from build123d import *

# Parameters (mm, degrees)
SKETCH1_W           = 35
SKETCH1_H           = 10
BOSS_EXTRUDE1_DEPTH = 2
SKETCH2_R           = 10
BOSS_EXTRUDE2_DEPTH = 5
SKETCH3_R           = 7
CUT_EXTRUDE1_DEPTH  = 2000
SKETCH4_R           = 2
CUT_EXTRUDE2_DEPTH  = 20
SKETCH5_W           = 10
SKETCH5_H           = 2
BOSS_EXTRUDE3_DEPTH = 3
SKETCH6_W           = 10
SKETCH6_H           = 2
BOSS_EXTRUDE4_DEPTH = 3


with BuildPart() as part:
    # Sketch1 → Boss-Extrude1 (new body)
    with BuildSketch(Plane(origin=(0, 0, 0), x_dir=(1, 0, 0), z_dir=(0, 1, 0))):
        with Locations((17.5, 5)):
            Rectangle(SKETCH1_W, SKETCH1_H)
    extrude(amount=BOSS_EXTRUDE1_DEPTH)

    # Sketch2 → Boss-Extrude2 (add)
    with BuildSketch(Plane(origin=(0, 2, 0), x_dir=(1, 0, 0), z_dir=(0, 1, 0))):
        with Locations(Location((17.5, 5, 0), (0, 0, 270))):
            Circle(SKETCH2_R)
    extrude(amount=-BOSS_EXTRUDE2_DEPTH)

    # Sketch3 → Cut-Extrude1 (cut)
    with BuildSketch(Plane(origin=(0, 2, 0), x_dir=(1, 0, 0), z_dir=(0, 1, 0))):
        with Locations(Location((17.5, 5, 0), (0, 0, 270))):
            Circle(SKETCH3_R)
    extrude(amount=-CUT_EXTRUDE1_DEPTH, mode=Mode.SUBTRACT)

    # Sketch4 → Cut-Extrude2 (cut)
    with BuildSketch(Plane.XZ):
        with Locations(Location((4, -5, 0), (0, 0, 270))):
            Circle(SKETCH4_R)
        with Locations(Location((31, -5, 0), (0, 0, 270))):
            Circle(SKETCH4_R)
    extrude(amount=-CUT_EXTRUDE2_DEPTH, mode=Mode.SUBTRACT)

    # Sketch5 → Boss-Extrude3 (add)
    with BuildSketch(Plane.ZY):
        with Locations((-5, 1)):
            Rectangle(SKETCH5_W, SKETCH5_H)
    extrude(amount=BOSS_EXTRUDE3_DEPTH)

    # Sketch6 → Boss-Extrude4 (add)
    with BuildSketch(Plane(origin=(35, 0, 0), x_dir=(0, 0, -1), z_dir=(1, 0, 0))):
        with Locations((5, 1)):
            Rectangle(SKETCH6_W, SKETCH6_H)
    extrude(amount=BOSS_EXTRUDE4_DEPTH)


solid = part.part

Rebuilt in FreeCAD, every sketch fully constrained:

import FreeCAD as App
import Part
import Sketcher
from FreeCAD import Vector

doc = App.newDocument("Part")
body = doc.addObject("PartDesign::Body", "Body")

sketch1 = doc.addObject("Sketcher::SketchObject", "Sketch")
body.addObject(sketch1)
sketch1.AttachmentSupport = (doc.XZ_Plane, [""])
sketch1.MapMode = "FlatFace"
sketch1.addGeometry([
    Part.LineSegment(Vector(0, -10, 0), Vector(0, 0, 0)),
    Part.LineSegment(Vector(0, 0, 0), Vector(35, 0, 0)),
    Part.LineSegment(Vector(35, 0, 0), Vector(35, -10, 0)),
    Part.LineSegment(Vector(35, -10, 0), Vector(0, -10, 0)),
], False)
sketch1.addConstraint([
    Sketcher.Constraint("Coincident", 0, 2, 1, 1),
    Sketcher.Constraint("Coincident", 1, 2, 2, 1),
    Sketcher.Constraint("Coincident", 2, 2, 3, 1),
    Sketcher.Constraint("Coincident", 3, 2, 0, 1),
    Sketcher.Constraint("Vertical", 0),
    Sketcher.Constraint("Horizontal", 1),
    Sketcher.Constraint("Vertical", 2),
    Sketcher.Constraint("Horizontal", 3),
    Sketcher.Constraint("Coincident", 0, 2, -1, 1),
    Sketcher.Constraint("DistanceX", 1, 1, 1, 2, 35.0),
    Sketcher.Constraint("DistanceY", 0, 1, 0, 2, 10.0),
])
pad1 = doc.addObject("PartDesign::Pad", "Pad")
body.addObject(pad1)
pad1.Profile = sketch1
pad1.Length = 2
pad1.Reversed = True

sketch2 = doc.addObject("Sketcher::SketchObject", "Sketch001")
body.addObject(sketch2)
sketch2.AttachmentSupport = (doc.XZ_Plane, [""])
sketch2.MapMode = "FlatFace"
sketch2.AttachmentOffset = App.Placement(Vector(0, 0, -2), App.Rotation())
sketch2.addGeometry(Part.Circle(Vector(18, -5, 0), Vector(0, 0, 1), 10), False)
sketch2.addConstraint([
    Sketcher.Constraint("Diameter", 0, 20.0),
    Sketcher.Constraint("DistanceY", 0, 3, -1, 1, 5.0),
    Sketcher.Constraint("DistanceX", -1, 1, 0, 3, 17.5),
])
pad2 = doc.addObject("PartDesign::Pad", "Pad001")
body.addObject(pad2)
pad2.Profile = sketch2
pad2.Length = 5

sketch3 = doc.addObject("Sketcher::SketchObject", "Sketch002")
body.addObject(sketch3)
sketch3.AttachmentSupport = (doc.XZ_Plane, [""])
sketch3.MapMode = "FlatFace"
sketch3.AttachmentOffset = App.Placement(Vector(0, 0, -2), App.Rotation())
sketch3.addGeometry(Part.Circle(Vector(18, -5, 0), Vector(0, 0, 1), 7), False)
sketch3.addConstraint([
    Sketcher.Constraint("Diameter", 0, 14.0),
    Sketcher.Constraint("DistanceY", 0, 3, -1, 1, 5.0),
    Sketcher.Constraint("DistanceX", -1, 1, 0, 3, 17.5),
])
pocket1 = doc.addObject("PartDesign::Pocket", "Pocket")
body.addObject(pocket1)
pocket1.Profile = sketch3
pocket1.Length = 2000
pocket1.Reversed = True

sketch4 = doc.addObject("Sketcher::SketchObject", "Sketch003")
body.addObject(sketch4)
sketch4.AttachmentSupport = (doc.XZ_Plane, [""])
sketch4.MapMode = "FlatFace"
sketch4.addGeometry([
    Part.Circle(Vector(4, -5, 0), Vector(0, 0, 1), 2),
    Part.Circle(Vector(31, -5, 0), Vector(0, 0, 1), 2),
], False)
sketch4.addConstraint([
    Sketcher.Constraint("Equal", 0, 1),
    Sketcher.Constraint("Horizontal", 0, 3, 1, 3),
    Sketcher.Constraint("Diameter", 0, 4.0),
    Sketcher.Constraint("DistanceX", -1, 1, 0, 3, 4.0),
    Sketcher.Constraint("DistanceY", 0, 3, -1, 1, 5.0),
    Sketcher.Constraint("DistanceX", -1, 1, 1, 3, 31.0),
])
pocket2 = doc.addObject("PartDesign::Pocket", "Pocket001")
body.addObject(pocket2)
pocket2.Profile = sketch4
pocket2.Length = 20

sketch5 = doc.addObject("Sketcher::SketchObject", "Sketch004")
body.addObject(sketch5)
sketch5.AttachmentSupport = (doc.YZ_Plane, [""])
sketch5.MapMode = "FlatFace"
sketch5.addGeometry([
    Part.LineSegment(Vector(2, -10, 0), Vector(0, -10, 0)),
    Part.LineSegment(Vector(0, -10, 0), Vector(0, 0, 0)),
    Part.LineSegment(Vector(0, 0, 0), Vector(2, 0, 0)),
    Part.LineSegment(Vector(2, 0, 0), Vector(2, -10, 0)),
], False)
sketch5.addConstraint([
    Sketcher.Constraint("Coincident", 0, 2, 1, 1),
    Sketcher.Constraint("Coincident", 1, 2, 2, 1),
    Sketcher.Constraint("Coincident", 2, 2, 3, 1),
    Sketcher.Constraint("Coincident", 3, 2, 0, 1),
    Sketcher.Constraint("Horizontal", 0),
    Sketcher.Constraint("Vertical", 1),
    Sketcher.Constraint("Horizontal", 2),
    Sketcher.Constraint("Vertical", 3),
    Sketcher.Constraint("Coincident", 1, 2, -1, 1),
    Sketcher.Constraint("DistanceX", 0, 2, 0, 1, 2.0),
    Sketcher.Constraint("DistanceY", 1, 1, 1, 2, 10.0),
])
pad3 = doc.addObject("PartDesign::Pad", "Pad002")
body.addObject(pad3)
pad3.Profile = sketch5
pad3.Length = 3
pad3.Reversed = True

sketch6 = doc.addObject("Sketcher::SketchObject", "Sketch005")
body.addObject(sketch6)
sketch6.AttachmentSupport = (doc.YZ_Plane, [""])
sketch6.MapMode = "FlatFace"
sketch6.AttachmentOffset = App.Placement(Vector(0, 0, 35), App.Rotation())
sketch6.addGeometry([
    Part.LineSegment(Vector(2, 0, 0), Vector(0, 0, 0)),
    Part.LineSegment(Vector(0, 0, 0), Vector(0, -10, 0)),
    Part.LineSegment(Vector(0, -10, 0), Vector(2, -10, 0)),
    Part.LineSegment(Vector(2, -10, 0), Vector(2, 0, 0)),
], False)
sketch6.addConstraint([
    Sketcher.Constraint("Coincident", 0, 2, 1, 1),
    Sketcher.Constraint("Coincident", 1, 2, 2, 1),
    Sketcher.Constraint("Coincident", 2, 2, 3, 1),
    Sketcher.Constraint("Coincident", 3, 2, 0, 1),
    Sketcher.Constraint("Horizontal", 0),
    Sketcher.Constraint("Vertical", 1),
    Sketcher.Constraint("Horizontal", 2),
    Sketcher.Constraint("Vertical", 3),
    Sketcher.Constraint("Coincident", 0, 2, -1, 1),
    Sketcher.Constraint("DistanceX", 0, 2, 0, 1, 2.0),
    Sketcher.Constraint("DistanceY", 1, 2, 1, 1, 10.0),
])
pad4 = doc.addObject("PartDesign::Pad", "Pad003")
body.addObject(pad4)
pad4.Profile = sketch6
pad4.Length = 3

doc.recompute()
